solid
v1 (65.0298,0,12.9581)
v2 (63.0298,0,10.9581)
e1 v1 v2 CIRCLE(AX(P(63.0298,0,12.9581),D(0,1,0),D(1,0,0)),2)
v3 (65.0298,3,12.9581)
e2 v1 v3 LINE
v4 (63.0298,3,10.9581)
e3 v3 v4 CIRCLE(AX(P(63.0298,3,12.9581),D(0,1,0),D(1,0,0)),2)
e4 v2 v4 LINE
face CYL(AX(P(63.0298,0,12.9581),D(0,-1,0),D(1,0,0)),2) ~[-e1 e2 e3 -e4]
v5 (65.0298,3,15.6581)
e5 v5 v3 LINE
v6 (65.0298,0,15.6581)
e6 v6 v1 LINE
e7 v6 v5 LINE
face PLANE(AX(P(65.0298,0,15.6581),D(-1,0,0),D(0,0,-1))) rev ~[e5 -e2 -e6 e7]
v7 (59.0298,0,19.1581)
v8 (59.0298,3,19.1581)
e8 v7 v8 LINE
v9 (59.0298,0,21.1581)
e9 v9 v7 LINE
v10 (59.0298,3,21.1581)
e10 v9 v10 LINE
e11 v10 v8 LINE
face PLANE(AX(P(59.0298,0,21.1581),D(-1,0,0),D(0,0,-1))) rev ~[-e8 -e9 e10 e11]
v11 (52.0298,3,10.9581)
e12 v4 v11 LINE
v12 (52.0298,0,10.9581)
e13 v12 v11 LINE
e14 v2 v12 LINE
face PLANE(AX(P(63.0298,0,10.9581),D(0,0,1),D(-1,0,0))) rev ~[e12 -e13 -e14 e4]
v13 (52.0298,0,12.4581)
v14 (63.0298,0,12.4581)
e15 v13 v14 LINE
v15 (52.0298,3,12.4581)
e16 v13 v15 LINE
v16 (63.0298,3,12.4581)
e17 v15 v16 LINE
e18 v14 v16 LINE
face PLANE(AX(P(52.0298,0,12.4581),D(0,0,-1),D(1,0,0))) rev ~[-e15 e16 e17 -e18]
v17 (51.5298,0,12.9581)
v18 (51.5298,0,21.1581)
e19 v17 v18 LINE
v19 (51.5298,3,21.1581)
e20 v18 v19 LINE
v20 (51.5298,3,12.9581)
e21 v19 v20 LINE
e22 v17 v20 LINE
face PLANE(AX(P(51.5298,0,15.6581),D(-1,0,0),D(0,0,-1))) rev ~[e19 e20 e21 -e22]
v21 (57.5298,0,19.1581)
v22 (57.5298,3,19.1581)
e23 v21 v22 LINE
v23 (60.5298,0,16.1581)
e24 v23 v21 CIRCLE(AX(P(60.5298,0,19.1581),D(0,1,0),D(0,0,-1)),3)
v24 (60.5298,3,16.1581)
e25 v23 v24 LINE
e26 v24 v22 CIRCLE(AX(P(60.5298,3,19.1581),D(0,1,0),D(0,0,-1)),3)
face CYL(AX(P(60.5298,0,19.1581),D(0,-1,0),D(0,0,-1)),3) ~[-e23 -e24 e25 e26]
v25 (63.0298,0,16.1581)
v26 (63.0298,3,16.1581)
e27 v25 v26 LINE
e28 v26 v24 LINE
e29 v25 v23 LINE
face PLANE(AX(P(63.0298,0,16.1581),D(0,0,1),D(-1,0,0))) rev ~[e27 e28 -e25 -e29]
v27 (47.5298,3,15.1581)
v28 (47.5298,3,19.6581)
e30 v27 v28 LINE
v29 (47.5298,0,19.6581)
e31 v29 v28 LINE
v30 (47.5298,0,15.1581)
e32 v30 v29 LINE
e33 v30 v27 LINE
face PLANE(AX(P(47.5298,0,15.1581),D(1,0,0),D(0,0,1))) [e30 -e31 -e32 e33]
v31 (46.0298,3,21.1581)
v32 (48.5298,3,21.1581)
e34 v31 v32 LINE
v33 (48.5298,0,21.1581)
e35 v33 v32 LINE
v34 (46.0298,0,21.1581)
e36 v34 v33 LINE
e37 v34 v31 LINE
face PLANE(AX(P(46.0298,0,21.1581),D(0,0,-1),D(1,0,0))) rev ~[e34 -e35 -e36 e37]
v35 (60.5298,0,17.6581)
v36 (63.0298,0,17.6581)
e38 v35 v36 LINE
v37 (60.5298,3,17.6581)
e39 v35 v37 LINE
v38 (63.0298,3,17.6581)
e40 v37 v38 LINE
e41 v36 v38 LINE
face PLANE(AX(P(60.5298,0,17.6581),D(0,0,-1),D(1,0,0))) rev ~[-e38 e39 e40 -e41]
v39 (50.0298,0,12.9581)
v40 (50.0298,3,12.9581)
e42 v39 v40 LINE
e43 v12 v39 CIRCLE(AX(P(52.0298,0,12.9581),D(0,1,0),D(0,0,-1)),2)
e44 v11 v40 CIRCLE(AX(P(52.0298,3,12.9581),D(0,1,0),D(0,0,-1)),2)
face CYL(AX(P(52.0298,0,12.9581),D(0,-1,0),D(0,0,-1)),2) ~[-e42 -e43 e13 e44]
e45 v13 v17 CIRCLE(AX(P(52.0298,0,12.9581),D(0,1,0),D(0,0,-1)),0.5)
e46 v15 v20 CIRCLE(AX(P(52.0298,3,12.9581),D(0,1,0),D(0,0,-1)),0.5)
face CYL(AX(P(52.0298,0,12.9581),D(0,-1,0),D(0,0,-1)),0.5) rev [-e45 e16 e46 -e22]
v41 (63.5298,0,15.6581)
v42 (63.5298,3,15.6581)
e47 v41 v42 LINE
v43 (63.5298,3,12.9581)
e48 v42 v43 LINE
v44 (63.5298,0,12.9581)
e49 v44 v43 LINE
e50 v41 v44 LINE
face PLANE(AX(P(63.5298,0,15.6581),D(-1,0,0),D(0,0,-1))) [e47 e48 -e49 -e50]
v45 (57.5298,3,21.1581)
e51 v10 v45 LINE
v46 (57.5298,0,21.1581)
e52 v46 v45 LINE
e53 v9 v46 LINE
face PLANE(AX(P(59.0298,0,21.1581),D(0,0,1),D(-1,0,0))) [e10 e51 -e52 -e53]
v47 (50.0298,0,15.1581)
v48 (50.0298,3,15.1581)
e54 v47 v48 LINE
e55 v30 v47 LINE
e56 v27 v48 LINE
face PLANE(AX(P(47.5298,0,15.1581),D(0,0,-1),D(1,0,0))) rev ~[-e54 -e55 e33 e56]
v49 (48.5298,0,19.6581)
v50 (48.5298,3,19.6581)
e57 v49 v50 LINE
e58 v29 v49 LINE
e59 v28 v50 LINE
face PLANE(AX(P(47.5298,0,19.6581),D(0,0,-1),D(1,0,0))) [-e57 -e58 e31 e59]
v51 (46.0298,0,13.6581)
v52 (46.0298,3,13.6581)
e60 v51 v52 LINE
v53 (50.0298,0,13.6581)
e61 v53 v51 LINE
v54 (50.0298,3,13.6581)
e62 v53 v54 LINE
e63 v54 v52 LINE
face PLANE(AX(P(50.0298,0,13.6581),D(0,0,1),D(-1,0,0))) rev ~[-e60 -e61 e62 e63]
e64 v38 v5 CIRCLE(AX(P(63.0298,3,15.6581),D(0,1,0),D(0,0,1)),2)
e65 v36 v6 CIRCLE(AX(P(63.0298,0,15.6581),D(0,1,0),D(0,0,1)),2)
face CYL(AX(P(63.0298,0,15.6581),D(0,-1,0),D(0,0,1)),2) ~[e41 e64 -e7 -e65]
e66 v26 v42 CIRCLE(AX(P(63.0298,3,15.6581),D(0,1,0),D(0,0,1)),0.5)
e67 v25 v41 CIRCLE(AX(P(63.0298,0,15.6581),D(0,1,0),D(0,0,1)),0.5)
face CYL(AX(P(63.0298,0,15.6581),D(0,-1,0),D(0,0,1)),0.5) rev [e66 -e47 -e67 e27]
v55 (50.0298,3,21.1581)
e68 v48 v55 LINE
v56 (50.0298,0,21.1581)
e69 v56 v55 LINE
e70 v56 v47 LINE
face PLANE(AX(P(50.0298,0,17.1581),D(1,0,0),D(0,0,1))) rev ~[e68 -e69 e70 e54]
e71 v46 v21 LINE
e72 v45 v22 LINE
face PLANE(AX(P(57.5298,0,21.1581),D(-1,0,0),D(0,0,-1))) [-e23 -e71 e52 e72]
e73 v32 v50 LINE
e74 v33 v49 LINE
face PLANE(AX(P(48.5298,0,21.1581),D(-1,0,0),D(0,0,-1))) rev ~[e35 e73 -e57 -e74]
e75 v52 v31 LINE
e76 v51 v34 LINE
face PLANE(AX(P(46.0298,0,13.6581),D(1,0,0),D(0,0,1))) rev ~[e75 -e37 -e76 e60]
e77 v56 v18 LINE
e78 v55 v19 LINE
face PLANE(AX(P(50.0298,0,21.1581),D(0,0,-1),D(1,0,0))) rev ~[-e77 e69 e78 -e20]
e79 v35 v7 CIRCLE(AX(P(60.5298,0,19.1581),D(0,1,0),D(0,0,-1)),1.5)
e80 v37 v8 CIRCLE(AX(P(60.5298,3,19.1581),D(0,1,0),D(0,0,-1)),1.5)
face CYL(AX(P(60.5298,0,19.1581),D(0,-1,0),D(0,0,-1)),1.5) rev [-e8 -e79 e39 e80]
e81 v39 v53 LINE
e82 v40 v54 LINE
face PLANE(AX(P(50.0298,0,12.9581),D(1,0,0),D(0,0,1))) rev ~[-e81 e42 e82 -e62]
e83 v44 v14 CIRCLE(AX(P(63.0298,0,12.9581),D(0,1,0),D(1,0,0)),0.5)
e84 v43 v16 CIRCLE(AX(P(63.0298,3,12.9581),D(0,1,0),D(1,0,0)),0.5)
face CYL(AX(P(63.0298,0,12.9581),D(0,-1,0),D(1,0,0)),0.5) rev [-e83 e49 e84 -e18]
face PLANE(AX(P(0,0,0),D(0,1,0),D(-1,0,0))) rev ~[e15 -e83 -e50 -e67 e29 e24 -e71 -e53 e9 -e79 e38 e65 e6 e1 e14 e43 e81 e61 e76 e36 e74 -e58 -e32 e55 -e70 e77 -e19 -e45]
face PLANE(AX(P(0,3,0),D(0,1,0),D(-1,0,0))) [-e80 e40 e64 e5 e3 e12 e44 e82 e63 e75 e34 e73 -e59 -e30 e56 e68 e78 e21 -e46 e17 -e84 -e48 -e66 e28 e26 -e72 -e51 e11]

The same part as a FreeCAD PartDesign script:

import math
import FreeCAD as App
import Part
import Sketcher

doc = App.newDocument("Part")
body = doc.addObject("PartDesign::Body", "Body")

# Sketch on XZ plane
sketch1 = body.newObject("Sketcher::SketchObject", "Sketch")
sketch1.AttachmentSupport = (doc.getObject("XZ_Plane"), [""])
sketch1.MapMode = "FlatFace"
sketch1.addGeometry(Part.LineSegment(App.Vector(63.5, 13, 0), App.Vector(63.5, 15.7, 0)), False)
sketch1.addGeometry(Part.ArcOfCircle(Part.Circle(App.Vector(63, 15.7, 0), App.Vector(0, 0, 1), 0.5), math.radians(0), math.radians(90)), False)
sketch1.addGeometry(Part.LineSegment(App.Vector(63, 16.2, 0), App.Vector(60.5, 16.2, 0)), False)
sketch1.addGeometry(Part.ArcOfCircle(Part.Circle(App.Vector(60.5, 19.2, 0), App.Vector(0, 0, 1), 3), math.radians(180), math.radians(270)), False)
sketch1.addGeometry(Part.LineSegment(App.Vector(57.5, 19.2, 0), App.Vector(57.5, 21.2, 0)), False)
sketch1.addGeometry(Part.LineSegment(App.Vector(57.5, 21.2, 0), App.Vector(59, 21.2, 0)), False)
sketch1.addGeometry(Part.LineSegment(App.Vector(59, 21.2, 0), App.Vector(59, 19.2, 0)), False)
sketch1.addGeometry(Part.ArcOfCircle(Part.Circle(App.Vector(60.5, 19.2, 0), App.Vector(0, 0, 1), 1.5), math.radians(180), math.radians(270)), False)
sketch1.addGeometry(Part.LineSegment(App.Vector(60.5, 17.7, 0), App.Vector(63, 17.7, 0)), False)
sketch1.addGeometry(Part.ArcOfCircle(Part.Circle(App.Vector(63, 15.7, 0), App.Vector(0, 0, 1), 2), math.radians(0), math.radians(90)), False)
sketch1.addGeometry(Part.LineSegment(App.Vector(65, 15.7, 0), App.Vector(65, 13, 0)), False)
sketch1.addGeometry(Part.ArcOfCircle(Part.Circle(App.Vector(63, 13, 0), App.Vector(0, 0, 1), 2), math.radians(-90), math.radians(0)), False)
sketch1.addGeometry(Part.LineSegment(App.Vector(63, 11, 0), App.Vector(52, 11, 0)), False)
sketch1.addGeometry(Part.ArcOfCircle(Part.Circle(App.Vector(52, 13, 0), App.Vector(0, 0, 1), 2), math.radians(180), math.radians(270)), False)
sketch1.addGeometry(Part.LineSegment(App.Vector(50, 13, 0), App.Vector(50, 13.7, 0)), False)
sketch1.addGeometry(Part.LineSegment(App.Vector(50, 13.7, 0), App.Vector(46, 13.7, 0)), False)
sketch1.addGeometry(Part.LineSegment(App.Vector(46, 13.7, 0), App.Vector(46, 21.2, 0)), False)
sketch1.addGeometry(Part.LineSegment(App.Vector(46, 21.2, 0), App.Vector(48.5, 21.2, 0)), False)
sketch1.addGeometry(Part.LineSegment(App.Vector(48.5, 21.2, 0), App.Vector(48.5, 19.7, 0)), False)
sketch1.addGeometry(Part.LineSegment(App.Vector(48.5, 19.7, 0), App.Vector(47.5, 19.7, 0)), False)
sketch1.addGeometry(Part.LineSegment(App.Vector(47.5, 19.7, 0), App.Vector(47.5, 15.2, 0)), False)
sketch1.addGeometry(Part.LineSegment(App.Vector(47.5, 15.2, 0), App.Vector(50, 15.2, 0)), False)
sketch1.addGeometry(Part.LineSegment(App.Vector(50, 15.2, 0), App.Vector(50, 21.2, 0)), False)
sketch1.addGeometry(Part.LineSegment(App.Vector(50, 21.2, 0), App.Vector(51.5, 21.2, 0)), False)
sketch1.addGeometry(Part.LineSegment(App.Vector(51.5, 21.2, 0), App.Vector(51.5, 13, 0)), False)
sketch1.addGeometry(Part.ArcOfCircle(Part.Circle(App.Vector(52, 13, 0), App.Vector(0, 0, 1), 0.5), math.radians(180), math.radians(270)), False)
sketch1.addGeometry(Part.LineSegment(App.Vector(52, 12.5, 0), App.Vector(63, 12.5, 0)), False)
sketch1.addGeometry(Part.ArcOfCircle(Part.Circle(App.Vector(63, 13, 0), App.Vector(0, 0, 1), 0.5), math.radians(-90), math.radians(0)), False)
sketch1.addConstraint(Sketcher.Constraint("Tangent", 0, 2, 1, 1))
sketch1.addConstraint(Sketcher.Constraint("Tangent", 1, 2, 2, 1))
sketch1.addConstraint(Sketcher.Constraint("Tangent", 2, 2, 3, 2))
sketch1.addConstraint(Sketcher.Constraint("Tangent", 3, 1, 4, 1))
sketch1.addConstraint(Sketcher.Constraint("Coincident", 4, 2, 5, 1))
sketch1.addConstraint(Sketcher.Constraint("Coincident", 5, 2, 6, 1))
sketch1.addConstraint(Sketcher.Constraint("Tangent", 6, 2, 7, 1))
sketch1.addConstraint(Sketcher.Constraint("Tangent", 7, 2, 8, 1))
sketch1.addConstraint(Sketcher.Constraint("Tangent", 8, 2, 9, 2))
sketch1.addConstraint(Sketcher.Constraint("Tangent", 9, 1, 10, 1))
sketch1.addConstraint(Sketcher.Constraint("Tangent", 10, 2, 11, 2))
sketch1.addConstraint(Sketcher.Constraint("Tangent", 11, 1, 12, 1))
sketch1.addConstraint(Sketcher.Constraint("Tangent", 12, 2, 13, 2))
sketch1.addConstraint(Sketcher.Constraint("Tangent", 13, 1, 14, 1))
sketch1.addConstraint(Sketcher.Constraint("Coincident", 14, 2, 15, 1))
sketch1.addConstraint(Sketcher.Constraint("Coincident", 15, 2, 16, 1))
sketch1.addConstraint(Sketcher.Constraint("Coincident", 16, 2, 17, 1))
sketch1.addConstraint(Sketcher.Constraint("Coincident", 17, 2, 18, 1))
sketch1.addConstraint(Sketcher.Constraint("Coincident", 18, 2, 19, 1))
sketch1.addConstraint(Sketcher.Constraint("Coincident", 19, 2, 20, 1))
sketch1.addConstraint(Sketcher.Constraint("Coincident", 20, 2, 21, 1))
sketch1.addConstraint(Sketcher.Constraint("Coincident", 21, 2, 22, 1))
sketch1.addConstraint(Sketcher.Constraint("Coincident", 22, 2, 23, 1))
sketch1.addConstraint(Sketcher.Constraint("Coincident", 23, 2, 24, 1))
sketch1.addConstraint(Sketcher.Constraint("Tangent", 24, 2, 25, 1))
sketch1.addConstraint(Sketcher.Constraint("Tangent", 25, 2, 26, 1))
sketch1.addConstraint(Sketcher.Constraint("Tangent", 26, 2, 27, 1))
sketch1.addConstraint(Sketcher.Constraint("Tangent", 27, 2, 0, 1))
sketch1.addConstraint(Sketcher.Constraint("Vertical", 0))
sketch1.addConstraint(Sketcher.Constraint("Horizontal", 2))
sketch1.addConstraint(Sketcher.Constraint("Vertical", 4))
sketch1.addConstraint(Sketcher.Constraint("Horizontal", 5))
sketch1.addConstraint(Sketcher.Constraint("Vertical", 6))
sketch1.addConstraint(Sketcher.Constraint("Horizontal", 8))
sketch1.addConstraint(Sketcher.Constraint("Vertical", 10))
sketch1.addConstraint(Sketcher.Constraint("Horizontal", 12))
sketch1.addConstraint(Sketcher.Constraint("Vertical", 14))
sketch1.addConstraint(Sketcher.Constraint("Horizontal", 15))
sketch1.addConstraint(Sketcher.Constraint("Vertical", 16))
sketch1.addConstraint(Sketcher.Constraint("Horizontal", 17))
sketch1.addConstraint(Sketcher.Constraint("Vertical", 18))
sketch1.addConstraint(Sketcher.Constraint("Horizontal", 19))
sketch1.addConstraint(Sketcher.Constraint("Vertical", 20))
sketch1.addConstraint(Sketcher.Constraint("Horizontal", 21))
sketch1.addConstraint(Sketcher.Constraint("Vertical", 22))
sketch1.addConstraint(Sketcher.Constraint("Horizontal", 23))
sketch1.addConstraint(Sketcher.Constraint("Vertical", 24))
sketch1.addConstraint(Sketcher.Constraint("Horizontal", 26))
sketch1.addConstraint(Sketcher.Constraint("Coincident", 7, 3, 3, 3))
sketch1.addConstraint(Sketcher.Constraint("Coincident", 9, 3, 1, 3))
sketch1.addConstraint(Sketcher.Constraint("Coincident", 25, 3, 13, 3))
sketch1.addConstraint(Sketcher.Constraint("Coincident", 27, 3, 11, 3))
sketch1.addConstraint(Sketcher.Constraint("Equal", 9, 11))
sketch1.addConstraint(Sketcher.Constraint("Equal", 11, 13))
sketch1.addConstraint(Sketcher.Constraint("Horizontal", 5, 2, 16, 2))
sketch1.addConstraint(Sketcher.Constraint("Horizontal", 17, 2, 22, 2))
sketch1.addConstraint(Sketcher.Constraint("Vertical", 14, 2, 21, 2))
sketch1.addConstraint(Sketcher.Constraint("Equal", 8, 17))
sketch1.addConstraint(Sketcher.Constraint("Equal", 17, 21))
sketch1.addConstraint(Sketcher.Constraint("Equal", 23, 18))
sketch1.addConstraint(Sketcher.Constraint("Radius", 9, 2.0))
sketch1.addConstraint(Sketcher.Constraint("Radius", 7, 1.5))
sketch1.addConstraint(Sketcher.Constraint("DistanceX", 15, 2, 15, 1, 4.0))
sketch1.addConstraint(Sketcher.Constraint("DistanceX", 2, 2, 2, 1, 2.5))
sketch1.addConstraint(Sketcher.Constraint("DistanceX", 5, 1, 5, 2, 1.5))
sketch1.addConstraint(Sketcher.Constraint("DistanceY", 16, 1, 16, 2, 7.5))
sketch1.addConstraint(Sketcher.Constraint("DistanceY", 2, 2, 4, 2, 5.0))
sketch1.addConstraint(Sketcher.Constraint("DistanceX", 13, 1, 3, 1, 7.5))
sketch1.addConstraint(Sketcher.Constraint("DistanceY", 15, 2, 20, 2, 1.5))
sketch1.addConstraint(Sketcher.Constraint("DistanceY", 0, 1, 0, 2, 2.7))
sketch1.addConstraint(Sketcher.Constraint("DistanceY", -1, 1, 1, 3, 15.658))
sketch1.addConstraint(Sketcher.Constraint("DistanceX", -1, 1, 1, 3, 63.0298))
pad1 = body.newObject("PartDesign::Pad", "Pad")
pad1.Profile = sketch1
pad1.Length = 3
pad1.Reversed = True

doc.recompute()
